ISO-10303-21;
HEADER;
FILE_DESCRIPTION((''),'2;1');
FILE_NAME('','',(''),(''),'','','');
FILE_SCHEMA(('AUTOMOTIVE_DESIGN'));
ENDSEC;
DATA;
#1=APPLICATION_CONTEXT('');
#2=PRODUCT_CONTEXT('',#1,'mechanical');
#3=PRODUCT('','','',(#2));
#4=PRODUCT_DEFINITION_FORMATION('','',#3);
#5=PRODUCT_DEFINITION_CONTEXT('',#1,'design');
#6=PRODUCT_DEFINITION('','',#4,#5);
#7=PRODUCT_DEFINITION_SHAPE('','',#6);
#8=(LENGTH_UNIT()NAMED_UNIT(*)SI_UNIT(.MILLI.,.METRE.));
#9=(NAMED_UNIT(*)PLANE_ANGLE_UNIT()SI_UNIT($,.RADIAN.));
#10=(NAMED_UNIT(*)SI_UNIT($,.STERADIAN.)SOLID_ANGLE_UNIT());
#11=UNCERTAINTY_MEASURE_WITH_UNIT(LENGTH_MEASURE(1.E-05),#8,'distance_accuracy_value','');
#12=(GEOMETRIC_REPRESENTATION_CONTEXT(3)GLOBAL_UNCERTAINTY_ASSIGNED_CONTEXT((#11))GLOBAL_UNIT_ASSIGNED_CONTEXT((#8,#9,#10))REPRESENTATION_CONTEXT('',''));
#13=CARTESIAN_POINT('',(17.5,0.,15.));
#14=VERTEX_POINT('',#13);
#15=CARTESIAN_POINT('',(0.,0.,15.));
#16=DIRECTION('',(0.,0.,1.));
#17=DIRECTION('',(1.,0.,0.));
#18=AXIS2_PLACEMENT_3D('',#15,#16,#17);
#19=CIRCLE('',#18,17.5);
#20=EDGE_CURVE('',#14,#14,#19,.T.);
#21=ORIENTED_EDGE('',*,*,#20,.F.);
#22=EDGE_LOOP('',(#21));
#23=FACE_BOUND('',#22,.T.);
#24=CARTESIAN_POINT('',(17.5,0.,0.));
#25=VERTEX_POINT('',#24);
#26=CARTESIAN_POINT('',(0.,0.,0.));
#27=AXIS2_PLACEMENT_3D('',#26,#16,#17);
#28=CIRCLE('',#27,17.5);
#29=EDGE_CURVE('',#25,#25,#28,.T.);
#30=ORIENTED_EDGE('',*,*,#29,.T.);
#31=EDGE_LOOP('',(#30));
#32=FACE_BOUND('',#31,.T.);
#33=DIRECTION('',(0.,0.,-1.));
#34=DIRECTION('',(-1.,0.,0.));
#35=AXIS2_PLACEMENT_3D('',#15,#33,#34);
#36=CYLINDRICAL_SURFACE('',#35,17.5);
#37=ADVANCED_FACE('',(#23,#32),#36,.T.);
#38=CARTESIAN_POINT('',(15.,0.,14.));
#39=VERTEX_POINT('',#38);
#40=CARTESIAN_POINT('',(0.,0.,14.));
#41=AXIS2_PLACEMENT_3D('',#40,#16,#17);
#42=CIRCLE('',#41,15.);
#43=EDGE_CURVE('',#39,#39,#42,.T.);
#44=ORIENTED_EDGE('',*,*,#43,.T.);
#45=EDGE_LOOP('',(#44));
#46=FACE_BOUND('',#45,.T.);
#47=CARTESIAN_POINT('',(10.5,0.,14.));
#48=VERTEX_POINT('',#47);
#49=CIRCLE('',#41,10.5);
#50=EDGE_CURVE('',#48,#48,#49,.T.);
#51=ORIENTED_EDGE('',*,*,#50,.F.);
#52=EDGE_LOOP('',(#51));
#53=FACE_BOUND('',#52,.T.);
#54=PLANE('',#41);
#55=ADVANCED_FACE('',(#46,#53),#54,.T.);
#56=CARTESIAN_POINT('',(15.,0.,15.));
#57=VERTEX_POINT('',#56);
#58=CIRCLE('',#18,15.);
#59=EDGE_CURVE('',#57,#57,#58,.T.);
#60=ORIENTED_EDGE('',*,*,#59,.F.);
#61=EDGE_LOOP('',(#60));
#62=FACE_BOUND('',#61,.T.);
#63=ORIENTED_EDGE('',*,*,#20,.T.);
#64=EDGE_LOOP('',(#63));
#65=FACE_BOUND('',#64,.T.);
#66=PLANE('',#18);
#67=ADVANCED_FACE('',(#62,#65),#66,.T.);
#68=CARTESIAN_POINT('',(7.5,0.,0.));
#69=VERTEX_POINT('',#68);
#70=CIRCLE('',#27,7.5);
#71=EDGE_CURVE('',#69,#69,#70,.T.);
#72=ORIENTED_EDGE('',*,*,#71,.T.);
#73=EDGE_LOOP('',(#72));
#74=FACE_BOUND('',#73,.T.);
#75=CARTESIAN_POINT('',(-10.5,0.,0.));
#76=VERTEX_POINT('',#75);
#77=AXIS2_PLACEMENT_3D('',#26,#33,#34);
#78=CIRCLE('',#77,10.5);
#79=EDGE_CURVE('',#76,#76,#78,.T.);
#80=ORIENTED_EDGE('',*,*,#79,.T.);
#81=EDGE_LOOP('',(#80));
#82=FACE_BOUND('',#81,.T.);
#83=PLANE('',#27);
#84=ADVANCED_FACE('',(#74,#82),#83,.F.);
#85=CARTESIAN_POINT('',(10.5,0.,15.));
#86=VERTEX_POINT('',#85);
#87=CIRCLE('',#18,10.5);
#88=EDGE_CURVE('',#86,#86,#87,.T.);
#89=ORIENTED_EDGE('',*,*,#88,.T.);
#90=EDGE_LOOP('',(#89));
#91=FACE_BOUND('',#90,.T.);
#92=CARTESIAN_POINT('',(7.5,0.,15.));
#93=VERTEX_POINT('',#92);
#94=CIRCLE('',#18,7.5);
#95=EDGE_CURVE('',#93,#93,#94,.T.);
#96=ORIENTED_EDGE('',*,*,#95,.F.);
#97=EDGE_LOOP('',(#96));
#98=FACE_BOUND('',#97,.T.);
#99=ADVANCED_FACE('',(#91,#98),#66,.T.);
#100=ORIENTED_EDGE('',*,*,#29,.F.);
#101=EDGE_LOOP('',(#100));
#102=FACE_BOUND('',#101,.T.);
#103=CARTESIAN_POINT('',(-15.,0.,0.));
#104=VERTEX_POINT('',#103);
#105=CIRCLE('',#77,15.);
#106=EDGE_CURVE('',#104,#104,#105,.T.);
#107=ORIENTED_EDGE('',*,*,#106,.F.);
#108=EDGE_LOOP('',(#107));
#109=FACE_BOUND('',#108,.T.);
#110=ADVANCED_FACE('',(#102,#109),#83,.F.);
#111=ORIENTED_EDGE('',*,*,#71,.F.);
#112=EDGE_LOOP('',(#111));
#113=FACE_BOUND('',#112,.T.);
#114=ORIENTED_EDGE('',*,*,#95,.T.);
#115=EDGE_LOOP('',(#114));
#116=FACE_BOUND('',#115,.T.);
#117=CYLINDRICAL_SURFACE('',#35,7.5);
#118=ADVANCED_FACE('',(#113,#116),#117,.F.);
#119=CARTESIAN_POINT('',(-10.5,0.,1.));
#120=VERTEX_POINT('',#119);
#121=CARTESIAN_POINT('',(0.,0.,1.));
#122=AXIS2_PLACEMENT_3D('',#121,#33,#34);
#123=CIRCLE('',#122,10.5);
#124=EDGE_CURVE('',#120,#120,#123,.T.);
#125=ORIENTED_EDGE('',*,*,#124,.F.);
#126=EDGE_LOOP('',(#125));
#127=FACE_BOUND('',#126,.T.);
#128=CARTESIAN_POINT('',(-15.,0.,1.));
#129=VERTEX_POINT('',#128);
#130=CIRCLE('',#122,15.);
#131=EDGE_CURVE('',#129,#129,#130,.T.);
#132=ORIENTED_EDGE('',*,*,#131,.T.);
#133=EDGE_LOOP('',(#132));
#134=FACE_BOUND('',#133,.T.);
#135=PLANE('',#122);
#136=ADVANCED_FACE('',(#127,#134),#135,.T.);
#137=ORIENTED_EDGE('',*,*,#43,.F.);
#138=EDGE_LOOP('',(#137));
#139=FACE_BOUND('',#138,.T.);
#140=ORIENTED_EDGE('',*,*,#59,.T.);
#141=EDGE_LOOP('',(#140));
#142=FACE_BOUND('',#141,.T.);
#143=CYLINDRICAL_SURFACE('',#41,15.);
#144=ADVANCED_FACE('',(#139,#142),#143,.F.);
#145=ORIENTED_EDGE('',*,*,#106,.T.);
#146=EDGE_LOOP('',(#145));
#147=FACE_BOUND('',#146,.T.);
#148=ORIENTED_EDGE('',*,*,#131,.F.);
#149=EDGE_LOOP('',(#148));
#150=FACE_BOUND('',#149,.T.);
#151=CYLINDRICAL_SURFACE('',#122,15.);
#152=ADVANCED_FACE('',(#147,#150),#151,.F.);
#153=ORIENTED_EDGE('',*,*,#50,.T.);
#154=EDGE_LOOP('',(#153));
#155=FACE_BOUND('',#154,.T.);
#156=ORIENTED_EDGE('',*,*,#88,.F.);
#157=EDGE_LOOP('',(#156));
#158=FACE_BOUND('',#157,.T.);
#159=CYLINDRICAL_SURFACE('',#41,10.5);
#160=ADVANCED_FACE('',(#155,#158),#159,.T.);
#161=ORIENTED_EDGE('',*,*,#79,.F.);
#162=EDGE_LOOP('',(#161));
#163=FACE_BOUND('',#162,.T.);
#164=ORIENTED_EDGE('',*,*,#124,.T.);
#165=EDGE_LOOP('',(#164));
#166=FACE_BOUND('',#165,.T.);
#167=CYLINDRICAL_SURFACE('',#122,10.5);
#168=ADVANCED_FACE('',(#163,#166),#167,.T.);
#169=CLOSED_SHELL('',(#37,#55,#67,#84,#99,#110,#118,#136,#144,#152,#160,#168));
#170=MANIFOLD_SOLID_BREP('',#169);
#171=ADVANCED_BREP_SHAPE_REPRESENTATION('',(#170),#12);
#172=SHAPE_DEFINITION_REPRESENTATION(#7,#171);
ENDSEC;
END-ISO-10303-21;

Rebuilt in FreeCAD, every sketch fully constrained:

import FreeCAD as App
import Part
import Sketcher

V = App.Vector

doc = App.newDocument("Part")
body = doc.addObject("PartDesign::Body", "Body")

# Sketch on XY plane
sketch1 = body.newObject("Sketcher::SketchObject", "Sketch")
sketch1.AttachmentSupport = (doc.getObject("XY_Plane"), [""])
sketch1.MapMode = "FlatFace"
sketch1.addGeometry(Part.Circle(V(0, 0, 0), V(0, 0, 1), 18), False)
sketch1.addGeometry(Part.Circle(V(0, 0, 0), V(0, 0, 1), 8), False)
sketch1.addConstraint(Sketcher.Constraint("Coincident", 0, 3, -1, 1))
sketch1.addConstraint(Sketcher.Constraint("Coincident", 1, 3, -1, 1))
sketch1.addConstraint(Sketcher.Constraint("Diameter", 0, 35.0))
sketch1.addConstraint(Sketcher.Constraint("Diameter", 1, 15.0))
pad1 = body.newObject("PartDesign::Pad", "Pad")
pad1.Profile = sketch1
pad1.Length = 15

# Sketch on XY plane
sketch2 = body.newObject("Sketcher::SketchObject", "Sketch001")
sketch2.AttachmentSupport = (doc.getObject("XY_Plane"), [""])
sketch2.MapMode = "FlatFace"
sketch2.AttachmentOffset = App.Placement(V(0, 0, 15), App.Rotation())
sketch2.addGeometry(Part.Circle(V(0, 0, 0), V(0, 0, 1), 15), False)
sketch2.addGeometry(Part.Circle(V(0, 0, 0), V(0, 0, 1), 10), False)
sketch2.addConstraint(Sketcher.Constraint("Coincident", 0, 3, -1, 1))
sketch2.addConstraint(Sketcher.Constraint("Coincident", 1, 3, -1, 1))
sketch2.addConstraint(Sketcher.Constraint("Diameter", 0, 30.0))
sketch2.addConstraint(Sketcher.Constraint("Diameter", 1, 21.0))
pocket1 = body.newObject("PartDesign::Pocket", "Pocket")
pocket1.Profile = sketch2
pocket1.Length = 1

# Sketch on XY plane
sketch3 = body.newObject("Sketcher::SketchObject", "Sketch002")
sketch3.AttachmentSupport = (doc.getObject("XY_Plane"), [""])
sketch3.MapMode = "FlatFace"
sketch3.AttachmentOffset = App.Placement(V(0, 0, 1), App.Rotation())
sketch3.addGeometry(Part.Circle(V(0, 0, 0), V(0, 0, 1), 15), False)
sketch3.addGeometry(Part.Circle(V(0, 0, 0), V(0, 0, 1), 10), False)
sketch3.addConstraint(Sketcher.Constraint("Coincident", 0, 3, -1, 1))
sketch3.addConstraint(Sketcher.Constraint("Coincident", 1, 3, -1, 1))
sketch3.addConstraint(Sketcher.Constraint("Diameter", 0, 30.0))
sketch3.addConstraint(Sketcher.Constraint("Diameter", 1, 21.0))
pocket2 = body.newObject("PartDesign::Pocket", "Pocket001")
pocket2.Profile = sketch3
pocket2.Length = 1

doc.recompute()
